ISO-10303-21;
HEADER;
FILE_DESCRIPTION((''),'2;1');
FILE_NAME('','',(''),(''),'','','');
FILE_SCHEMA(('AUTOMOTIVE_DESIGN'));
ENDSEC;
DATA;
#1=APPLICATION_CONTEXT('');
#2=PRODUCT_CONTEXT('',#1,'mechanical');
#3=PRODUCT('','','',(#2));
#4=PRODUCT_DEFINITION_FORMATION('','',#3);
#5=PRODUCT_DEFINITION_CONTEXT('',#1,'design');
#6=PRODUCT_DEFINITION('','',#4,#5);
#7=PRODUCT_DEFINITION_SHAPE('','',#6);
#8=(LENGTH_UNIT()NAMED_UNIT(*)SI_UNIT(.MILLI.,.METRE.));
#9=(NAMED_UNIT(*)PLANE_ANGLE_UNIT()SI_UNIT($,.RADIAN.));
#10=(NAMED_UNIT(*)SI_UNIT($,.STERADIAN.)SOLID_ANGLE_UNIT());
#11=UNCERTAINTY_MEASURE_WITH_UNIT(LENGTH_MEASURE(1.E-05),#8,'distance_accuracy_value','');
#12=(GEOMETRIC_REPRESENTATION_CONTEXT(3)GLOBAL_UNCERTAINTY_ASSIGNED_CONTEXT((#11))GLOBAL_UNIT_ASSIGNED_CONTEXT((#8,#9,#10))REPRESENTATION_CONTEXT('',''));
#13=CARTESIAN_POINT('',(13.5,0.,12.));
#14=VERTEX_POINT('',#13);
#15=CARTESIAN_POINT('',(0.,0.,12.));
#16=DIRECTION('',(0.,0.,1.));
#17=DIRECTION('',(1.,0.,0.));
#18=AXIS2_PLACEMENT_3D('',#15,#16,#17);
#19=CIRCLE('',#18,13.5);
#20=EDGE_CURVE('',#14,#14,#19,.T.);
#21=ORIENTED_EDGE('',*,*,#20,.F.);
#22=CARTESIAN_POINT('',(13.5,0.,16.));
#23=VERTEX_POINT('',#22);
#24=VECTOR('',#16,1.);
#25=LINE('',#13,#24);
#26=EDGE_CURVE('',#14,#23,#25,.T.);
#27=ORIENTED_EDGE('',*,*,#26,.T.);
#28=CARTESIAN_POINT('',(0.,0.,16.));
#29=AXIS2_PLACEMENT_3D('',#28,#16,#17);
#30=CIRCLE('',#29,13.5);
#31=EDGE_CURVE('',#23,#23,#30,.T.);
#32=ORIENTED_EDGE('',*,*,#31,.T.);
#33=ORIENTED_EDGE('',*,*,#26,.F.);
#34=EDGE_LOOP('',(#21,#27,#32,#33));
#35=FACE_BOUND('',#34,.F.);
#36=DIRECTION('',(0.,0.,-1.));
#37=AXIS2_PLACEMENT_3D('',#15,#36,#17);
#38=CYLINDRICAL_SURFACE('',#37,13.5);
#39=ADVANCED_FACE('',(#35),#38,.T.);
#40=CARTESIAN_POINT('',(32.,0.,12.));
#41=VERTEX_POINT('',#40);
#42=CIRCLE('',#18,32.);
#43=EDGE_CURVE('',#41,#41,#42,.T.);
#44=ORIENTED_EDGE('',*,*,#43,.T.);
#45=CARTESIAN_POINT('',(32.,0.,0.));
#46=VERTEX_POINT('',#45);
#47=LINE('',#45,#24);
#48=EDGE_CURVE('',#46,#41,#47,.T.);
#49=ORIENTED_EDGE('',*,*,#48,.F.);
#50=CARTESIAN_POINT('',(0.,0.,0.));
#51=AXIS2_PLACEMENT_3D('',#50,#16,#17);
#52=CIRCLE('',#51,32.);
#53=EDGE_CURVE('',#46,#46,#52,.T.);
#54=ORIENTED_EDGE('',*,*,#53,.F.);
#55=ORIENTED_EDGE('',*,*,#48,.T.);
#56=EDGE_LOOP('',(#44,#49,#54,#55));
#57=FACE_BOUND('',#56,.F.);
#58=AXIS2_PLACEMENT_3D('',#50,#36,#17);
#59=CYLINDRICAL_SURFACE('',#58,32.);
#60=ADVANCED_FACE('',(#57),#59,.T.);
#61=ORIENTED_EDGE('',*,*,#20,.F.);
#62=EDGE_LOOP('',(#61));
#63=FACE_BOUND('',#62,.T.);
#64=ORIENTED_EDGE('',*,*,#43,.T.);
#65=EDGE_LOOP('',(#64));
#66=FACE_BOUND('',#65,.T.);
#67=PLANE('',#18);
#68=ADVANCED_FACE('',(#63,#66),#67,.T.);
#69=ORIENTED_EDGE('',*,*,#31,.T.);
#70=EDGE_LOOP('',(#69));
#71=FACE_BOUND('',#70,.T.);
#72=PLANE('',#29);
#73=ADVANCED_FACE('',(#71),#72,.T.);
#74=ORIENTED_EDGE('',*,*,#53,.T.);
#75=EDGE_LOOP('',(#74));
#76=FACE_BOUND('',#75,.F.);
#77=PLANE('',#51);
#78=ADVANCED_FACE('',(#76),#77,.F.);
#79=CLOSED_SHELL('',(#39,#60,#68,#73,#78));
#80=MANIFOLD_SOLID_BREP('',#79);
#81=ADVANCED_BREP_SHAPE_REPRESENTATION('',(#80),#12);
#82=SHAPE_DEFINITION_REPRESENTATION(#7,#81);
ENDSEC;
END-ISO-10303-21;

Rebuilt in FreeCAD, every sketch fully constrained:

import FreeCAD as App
import Part
import Sketcher

doc = App.newDocument("Part")
params = doc.addObject("Spreadsheet::Sheet", "Params")
for row, (alias, value) in enumerate([
    ("sketch1_diameter", "64 mm"),
    ("pad1_length", "12 mm"),
    ("sketch2_diameter", "27 mm"),
    ("pad2_length", "4 mm"),
    ("sketch3_diameter", "2.4 mm"),
    ("pocket1_length", "18 mm"),
    ("sketch4_diameter", "20.8 mm"),
    ("pocket2_length", "2.6 mm"),
    ("sketch5_diameter", "2.2 mm"),
    ("pocket3_length", "18 mm"),
    ("sketch6_diameter", "8 mm"),
    ("pocket4_length", "18 mm"),
], start=1):
    params.set(f"A{row}", alias)
    params.set(f"B{row}", "=" + value)
    params.setAlias(f"B{row}", alias)

body = doc.addObject("PartDesign::Body", "Body")

# Sketch on XY plane
sketch1 = body.newObject("Sketcher::SketchObject", "Sketch")
sketch1.AttachmentSupport = (doc.getObject("XY_Plane"), [""])
sketch1.MapMode = "FlatFace"
sketch1.addGeometry(Part.Circle(App.Vector(0, 0, 0), App.Vector(0, 0, 1), 32), False)
sketch1.addConstraint(Sketcher.Constraint("Coincident", 0, 3, -1, 1))
sketch1.addConstraint(Sketcher.Constraint("Diameter", 0, 64.0))
sketch1.setExpression("Constraints[1]", "Params.sketch1_diameter")
pad1 = body.newObject("PartDesign::Pad", "Pad")
pad1.Profile = sketch1
pad1.setExpression("Length", "Params.pad1_length")

# Sketch on XY plane
sketch2 = body.newObject("Sketcher::SketchObject", "Sketch001")
sketch2.AttachmentSupport = (doc.getObject("XY_Plane"), [""])
sketch2.MapMode = "FlatFace"
sketch2.AttachmentOffset = App.Placement(App.Vector(0, 0, 12), App.Rotation())
sketch2.addGeometry(Part.Circle(App.Vector(0, 0, 0), App.Vector(0, 0, 1), 14), False)
sketch2.addConstraint(Sketcher.Constraint("Coincident", 0, 3, -1, 1))
sketch2.addConstraint(Sketcher.Constraint("Diameter", 0, 27.0))
sketch2.setExpression("Constraints[1]", "Params.sketch2_diameter")
pad2 = body.newObject("PartDesign::Pad", "Pad001")
pad2.Profile = sketch2
pad2.setExpression("Length", "Params.pad2_length")

# Sketch on XY plane
sketch3 = body.newObject("Sketcher::SketchObject", "Sketch002")
sketch3.AttachmentSupport = (doc.getObject("XY_Plane"), [""])
sketch3.MapMode = "FlatFace"
sketch3.AttachmentOffset = App.Placement(App.Vector(0, 0, 16), App.Rotation())
sketch3.addGeometry(Part.Circle(App.Vector(0, 0, 0), App.Vector(0, 0, 1), 1.2), False)
sketch3.addConstraint(Sketcher.Constraint("Coincident", 0, 3, -1, 1))
sketch3.addConstraint(Sketcher.Constraint("Diameter", 0, 2.4))
sketch3.setExpression("Constraints[1]", "Params.sketch3_diameter")
pocket1 = body.newObject("PartDesign::Pocket", "Pocket")
pocket1.Profile = sketch3
pocket1.setExpression("Length", "Params.pocket1_length")
pocket1.Reversed = True

# Sketch on XY plane
sketch4 = body.newObject("Sketcher::SketchObject", "Sketch003")
sketch4.AttachmentSupport = (doc.getObject("XY_Plane"), [""])
sketch4.MapMode = "FlatFace"
sketch4.AttachmentOffset = App.Placement(App.Vector(0, 0, 16), App.Rotation())
sketch4.addGeometry(Part.Circle(App.Vector(0, 0, 0), App.Vector(0, 0, 1), 10), False)
sketch4.addConstraint(Sketcher.Constraint("Coincident", 0, 3, -1, 1))
sketch4.addConstraint(Sketcher.Constraint("Diameter", 0, 20.8))
sketch4.setExpression("Constraints[1]", "Params.sketch4_diameter")
pocket2 = body.newObject("PartDesign::Pocket", "Pocket001")
pocket2.Profile = sketch4
pocket2.setExpression("Length", "Params.pocket2_length")
pocket2.Reversed = True

# Sketch on XY plane
sketch5 = body.newObject("Sketcher::SketchObject", "Sketch004")
sketch5.AttachmentSupport = (doc.getObject("XY_Plane"), [""])
sketch5.MapMode = "FlatFace"
sketch5.AttachmentOffset = App.Placement(App.Vector(0, 0, 16), App.Rotation())
sketch5.addGeometry(Part.Circle(App.Vector(7.5, 0, 0), App.Vector(0, 0, 1), 1.1), False)
sketch5.addGeometry(Part.Circle(App.Vector(0, 7.5, 0), App.Vector(0, 0, 1), 1.1), False)
sketch5.addGeometry(Part.Circle(App.Vector(-7.5, 0, 0), App.Vector(0, 0, 1), 1.1), False)
sketch5.addGeometry(Part.Circle(App.Vector(0, -7.5, 0), App.Vector(0, 0, 1), 1.1), False)
sketch5.addConstraint(Sketcher.Constraint("Equal", 0, 1))
sketch5.addConstraint(Sketcher.Constraint("Equal", 1, 2))
sketch5.addConstraint(Sketcher.Constraint("Equal", 2, 3))
sketch5.addConstraint(Sketcher.Constraint("Symmetric", 0, 3, 2, 3, -1, 1))
sketch5.addConstraint(Sketcher.Constraint("Symmetric", 1, 3, 3, 3, -1, 1))
sketch5.addConstraint(Sketcher.Constraint("PointOnObject", 0, 3, -1))
sketch5.addConstraint(Sketcher.Constraint("PointOnObject", 1, 3, -2))
sketch5.addConstraint(Sketcher.Constraint("Diameter", 0, 2.2))
sketch5.addConstraint(Sketcher.Constraint("DistanceX", 2, 3, 0, 3, 15.0))
sketch5.addConstraint(Sketcher.Constraint("DistanceY", 3, 3, 1, 3, 15.0))
sketch5.setExpression("Constraints[7]", "Params.sketch5_diameter")
pocket3 = body.newObject("PartDesign::Pocket", "Pocket002")
pocket3.Profile = sketch5
pocket3.setExpression("Length", "Params.pocket3_length")
pocket3.Reversed = True

# Sketch on XY plane
sketch6 = body.newObject("Sketcher::SketchObject", "Sketch005")
sketch6.AttachmentSupport = (doc.getObject("XY_Plane"), [""])
sketch6.MapMode = "FlatFace"
sketch6.AttachmentOffset = App.Placement(App.Vector(0, 0, 16), App.Rotation())
sketch6.addGeometry(Part.Circle(App.Vector(19.5, 0, 0), App.Vector(0, 0, 1), 4), False)
sketch6.addGeometry(Part.Circle(App.Vector(9.8, 16.9, 0), App.Vector(0, 0, 1), 4), False)
sketch6.addGeometry(Part.Circle(App.Vector(-9.8, 16.9, 0), App.Vector(0, 0, 1), 4), False)
sketch6.addGeometry(Part.Circle(App.Vector(-19.5, 0, 0), App.Vector(0, 0, 1), 4), False)
sketch6.addGeometry(Part.Circle(App.Vector(-9.8, -16.9, 0), App.Vector(0, 0, 1), 4), False)
sketch6.addGeometry(Part.Circle(App.Vector(9.8, -16.9, 0), App.Vector(0, 0, 1), 4), False)
sketch6.addConstraint(Sketcher.Constraint("Equal", 0, 1))
sketch6.addConstraint(Sketcher.Constraint("Equal", 1, 2))
sketch6.addConstraint(Sketcher.Constraint("Equal", 2, 3))
sketch6.addConstraint(Sketcher.Constraint("Equal", 3, 4))
sketch6.addConstraint(Sketcher.Constraint("Equal", 4, 5))
sketch6.addConstraint(Sketcher.Constraint("Symmetric", 0, 3, 3, 3, -1, 1))
sketch6.addConstraint(Sketcher.Constraint("Symmetric", 1, 3, 4, 3, -1, 1))
sketch6.addConstraint(Sketcher.Constraint("Symmetric", 2, 3, 5, 3, -1, 1))
sketch6.addConstraint(Sketcher.Constraint("Symmetric", 1, 3, 2, 3, -2))
sketch6.addConstraint(Sketcher.Constraint("PointOnObject", 0, 3, -1))
sketch6.addConstraint(Sketcher.Constraint("Diameter", 0, 8.0))
sketch6.addConstraint(Sketcher.Constraint("DistanceX", 3, 3, 0, 3, 39.0))
sketch6.addConstraint(Sketcher.Constraint("DistanceX", 2, 3, 1, 3, 19.5))
sketch6.addConstraint(Sketcher.Constraint("DistanceY", 4, 3, 2, 3, 33.77499))
sketch6.setExpression("Constraints[10]", "Params.sketch6_diameter")
pocket4 = body.newObject("PartDesign::Pocket", "Pocket003")
pocket4.Profile = sketch6
pocket4.setExpression("Length", "Params.pocket4_length")
pocket4.Reversed = True

doc.recompute()
